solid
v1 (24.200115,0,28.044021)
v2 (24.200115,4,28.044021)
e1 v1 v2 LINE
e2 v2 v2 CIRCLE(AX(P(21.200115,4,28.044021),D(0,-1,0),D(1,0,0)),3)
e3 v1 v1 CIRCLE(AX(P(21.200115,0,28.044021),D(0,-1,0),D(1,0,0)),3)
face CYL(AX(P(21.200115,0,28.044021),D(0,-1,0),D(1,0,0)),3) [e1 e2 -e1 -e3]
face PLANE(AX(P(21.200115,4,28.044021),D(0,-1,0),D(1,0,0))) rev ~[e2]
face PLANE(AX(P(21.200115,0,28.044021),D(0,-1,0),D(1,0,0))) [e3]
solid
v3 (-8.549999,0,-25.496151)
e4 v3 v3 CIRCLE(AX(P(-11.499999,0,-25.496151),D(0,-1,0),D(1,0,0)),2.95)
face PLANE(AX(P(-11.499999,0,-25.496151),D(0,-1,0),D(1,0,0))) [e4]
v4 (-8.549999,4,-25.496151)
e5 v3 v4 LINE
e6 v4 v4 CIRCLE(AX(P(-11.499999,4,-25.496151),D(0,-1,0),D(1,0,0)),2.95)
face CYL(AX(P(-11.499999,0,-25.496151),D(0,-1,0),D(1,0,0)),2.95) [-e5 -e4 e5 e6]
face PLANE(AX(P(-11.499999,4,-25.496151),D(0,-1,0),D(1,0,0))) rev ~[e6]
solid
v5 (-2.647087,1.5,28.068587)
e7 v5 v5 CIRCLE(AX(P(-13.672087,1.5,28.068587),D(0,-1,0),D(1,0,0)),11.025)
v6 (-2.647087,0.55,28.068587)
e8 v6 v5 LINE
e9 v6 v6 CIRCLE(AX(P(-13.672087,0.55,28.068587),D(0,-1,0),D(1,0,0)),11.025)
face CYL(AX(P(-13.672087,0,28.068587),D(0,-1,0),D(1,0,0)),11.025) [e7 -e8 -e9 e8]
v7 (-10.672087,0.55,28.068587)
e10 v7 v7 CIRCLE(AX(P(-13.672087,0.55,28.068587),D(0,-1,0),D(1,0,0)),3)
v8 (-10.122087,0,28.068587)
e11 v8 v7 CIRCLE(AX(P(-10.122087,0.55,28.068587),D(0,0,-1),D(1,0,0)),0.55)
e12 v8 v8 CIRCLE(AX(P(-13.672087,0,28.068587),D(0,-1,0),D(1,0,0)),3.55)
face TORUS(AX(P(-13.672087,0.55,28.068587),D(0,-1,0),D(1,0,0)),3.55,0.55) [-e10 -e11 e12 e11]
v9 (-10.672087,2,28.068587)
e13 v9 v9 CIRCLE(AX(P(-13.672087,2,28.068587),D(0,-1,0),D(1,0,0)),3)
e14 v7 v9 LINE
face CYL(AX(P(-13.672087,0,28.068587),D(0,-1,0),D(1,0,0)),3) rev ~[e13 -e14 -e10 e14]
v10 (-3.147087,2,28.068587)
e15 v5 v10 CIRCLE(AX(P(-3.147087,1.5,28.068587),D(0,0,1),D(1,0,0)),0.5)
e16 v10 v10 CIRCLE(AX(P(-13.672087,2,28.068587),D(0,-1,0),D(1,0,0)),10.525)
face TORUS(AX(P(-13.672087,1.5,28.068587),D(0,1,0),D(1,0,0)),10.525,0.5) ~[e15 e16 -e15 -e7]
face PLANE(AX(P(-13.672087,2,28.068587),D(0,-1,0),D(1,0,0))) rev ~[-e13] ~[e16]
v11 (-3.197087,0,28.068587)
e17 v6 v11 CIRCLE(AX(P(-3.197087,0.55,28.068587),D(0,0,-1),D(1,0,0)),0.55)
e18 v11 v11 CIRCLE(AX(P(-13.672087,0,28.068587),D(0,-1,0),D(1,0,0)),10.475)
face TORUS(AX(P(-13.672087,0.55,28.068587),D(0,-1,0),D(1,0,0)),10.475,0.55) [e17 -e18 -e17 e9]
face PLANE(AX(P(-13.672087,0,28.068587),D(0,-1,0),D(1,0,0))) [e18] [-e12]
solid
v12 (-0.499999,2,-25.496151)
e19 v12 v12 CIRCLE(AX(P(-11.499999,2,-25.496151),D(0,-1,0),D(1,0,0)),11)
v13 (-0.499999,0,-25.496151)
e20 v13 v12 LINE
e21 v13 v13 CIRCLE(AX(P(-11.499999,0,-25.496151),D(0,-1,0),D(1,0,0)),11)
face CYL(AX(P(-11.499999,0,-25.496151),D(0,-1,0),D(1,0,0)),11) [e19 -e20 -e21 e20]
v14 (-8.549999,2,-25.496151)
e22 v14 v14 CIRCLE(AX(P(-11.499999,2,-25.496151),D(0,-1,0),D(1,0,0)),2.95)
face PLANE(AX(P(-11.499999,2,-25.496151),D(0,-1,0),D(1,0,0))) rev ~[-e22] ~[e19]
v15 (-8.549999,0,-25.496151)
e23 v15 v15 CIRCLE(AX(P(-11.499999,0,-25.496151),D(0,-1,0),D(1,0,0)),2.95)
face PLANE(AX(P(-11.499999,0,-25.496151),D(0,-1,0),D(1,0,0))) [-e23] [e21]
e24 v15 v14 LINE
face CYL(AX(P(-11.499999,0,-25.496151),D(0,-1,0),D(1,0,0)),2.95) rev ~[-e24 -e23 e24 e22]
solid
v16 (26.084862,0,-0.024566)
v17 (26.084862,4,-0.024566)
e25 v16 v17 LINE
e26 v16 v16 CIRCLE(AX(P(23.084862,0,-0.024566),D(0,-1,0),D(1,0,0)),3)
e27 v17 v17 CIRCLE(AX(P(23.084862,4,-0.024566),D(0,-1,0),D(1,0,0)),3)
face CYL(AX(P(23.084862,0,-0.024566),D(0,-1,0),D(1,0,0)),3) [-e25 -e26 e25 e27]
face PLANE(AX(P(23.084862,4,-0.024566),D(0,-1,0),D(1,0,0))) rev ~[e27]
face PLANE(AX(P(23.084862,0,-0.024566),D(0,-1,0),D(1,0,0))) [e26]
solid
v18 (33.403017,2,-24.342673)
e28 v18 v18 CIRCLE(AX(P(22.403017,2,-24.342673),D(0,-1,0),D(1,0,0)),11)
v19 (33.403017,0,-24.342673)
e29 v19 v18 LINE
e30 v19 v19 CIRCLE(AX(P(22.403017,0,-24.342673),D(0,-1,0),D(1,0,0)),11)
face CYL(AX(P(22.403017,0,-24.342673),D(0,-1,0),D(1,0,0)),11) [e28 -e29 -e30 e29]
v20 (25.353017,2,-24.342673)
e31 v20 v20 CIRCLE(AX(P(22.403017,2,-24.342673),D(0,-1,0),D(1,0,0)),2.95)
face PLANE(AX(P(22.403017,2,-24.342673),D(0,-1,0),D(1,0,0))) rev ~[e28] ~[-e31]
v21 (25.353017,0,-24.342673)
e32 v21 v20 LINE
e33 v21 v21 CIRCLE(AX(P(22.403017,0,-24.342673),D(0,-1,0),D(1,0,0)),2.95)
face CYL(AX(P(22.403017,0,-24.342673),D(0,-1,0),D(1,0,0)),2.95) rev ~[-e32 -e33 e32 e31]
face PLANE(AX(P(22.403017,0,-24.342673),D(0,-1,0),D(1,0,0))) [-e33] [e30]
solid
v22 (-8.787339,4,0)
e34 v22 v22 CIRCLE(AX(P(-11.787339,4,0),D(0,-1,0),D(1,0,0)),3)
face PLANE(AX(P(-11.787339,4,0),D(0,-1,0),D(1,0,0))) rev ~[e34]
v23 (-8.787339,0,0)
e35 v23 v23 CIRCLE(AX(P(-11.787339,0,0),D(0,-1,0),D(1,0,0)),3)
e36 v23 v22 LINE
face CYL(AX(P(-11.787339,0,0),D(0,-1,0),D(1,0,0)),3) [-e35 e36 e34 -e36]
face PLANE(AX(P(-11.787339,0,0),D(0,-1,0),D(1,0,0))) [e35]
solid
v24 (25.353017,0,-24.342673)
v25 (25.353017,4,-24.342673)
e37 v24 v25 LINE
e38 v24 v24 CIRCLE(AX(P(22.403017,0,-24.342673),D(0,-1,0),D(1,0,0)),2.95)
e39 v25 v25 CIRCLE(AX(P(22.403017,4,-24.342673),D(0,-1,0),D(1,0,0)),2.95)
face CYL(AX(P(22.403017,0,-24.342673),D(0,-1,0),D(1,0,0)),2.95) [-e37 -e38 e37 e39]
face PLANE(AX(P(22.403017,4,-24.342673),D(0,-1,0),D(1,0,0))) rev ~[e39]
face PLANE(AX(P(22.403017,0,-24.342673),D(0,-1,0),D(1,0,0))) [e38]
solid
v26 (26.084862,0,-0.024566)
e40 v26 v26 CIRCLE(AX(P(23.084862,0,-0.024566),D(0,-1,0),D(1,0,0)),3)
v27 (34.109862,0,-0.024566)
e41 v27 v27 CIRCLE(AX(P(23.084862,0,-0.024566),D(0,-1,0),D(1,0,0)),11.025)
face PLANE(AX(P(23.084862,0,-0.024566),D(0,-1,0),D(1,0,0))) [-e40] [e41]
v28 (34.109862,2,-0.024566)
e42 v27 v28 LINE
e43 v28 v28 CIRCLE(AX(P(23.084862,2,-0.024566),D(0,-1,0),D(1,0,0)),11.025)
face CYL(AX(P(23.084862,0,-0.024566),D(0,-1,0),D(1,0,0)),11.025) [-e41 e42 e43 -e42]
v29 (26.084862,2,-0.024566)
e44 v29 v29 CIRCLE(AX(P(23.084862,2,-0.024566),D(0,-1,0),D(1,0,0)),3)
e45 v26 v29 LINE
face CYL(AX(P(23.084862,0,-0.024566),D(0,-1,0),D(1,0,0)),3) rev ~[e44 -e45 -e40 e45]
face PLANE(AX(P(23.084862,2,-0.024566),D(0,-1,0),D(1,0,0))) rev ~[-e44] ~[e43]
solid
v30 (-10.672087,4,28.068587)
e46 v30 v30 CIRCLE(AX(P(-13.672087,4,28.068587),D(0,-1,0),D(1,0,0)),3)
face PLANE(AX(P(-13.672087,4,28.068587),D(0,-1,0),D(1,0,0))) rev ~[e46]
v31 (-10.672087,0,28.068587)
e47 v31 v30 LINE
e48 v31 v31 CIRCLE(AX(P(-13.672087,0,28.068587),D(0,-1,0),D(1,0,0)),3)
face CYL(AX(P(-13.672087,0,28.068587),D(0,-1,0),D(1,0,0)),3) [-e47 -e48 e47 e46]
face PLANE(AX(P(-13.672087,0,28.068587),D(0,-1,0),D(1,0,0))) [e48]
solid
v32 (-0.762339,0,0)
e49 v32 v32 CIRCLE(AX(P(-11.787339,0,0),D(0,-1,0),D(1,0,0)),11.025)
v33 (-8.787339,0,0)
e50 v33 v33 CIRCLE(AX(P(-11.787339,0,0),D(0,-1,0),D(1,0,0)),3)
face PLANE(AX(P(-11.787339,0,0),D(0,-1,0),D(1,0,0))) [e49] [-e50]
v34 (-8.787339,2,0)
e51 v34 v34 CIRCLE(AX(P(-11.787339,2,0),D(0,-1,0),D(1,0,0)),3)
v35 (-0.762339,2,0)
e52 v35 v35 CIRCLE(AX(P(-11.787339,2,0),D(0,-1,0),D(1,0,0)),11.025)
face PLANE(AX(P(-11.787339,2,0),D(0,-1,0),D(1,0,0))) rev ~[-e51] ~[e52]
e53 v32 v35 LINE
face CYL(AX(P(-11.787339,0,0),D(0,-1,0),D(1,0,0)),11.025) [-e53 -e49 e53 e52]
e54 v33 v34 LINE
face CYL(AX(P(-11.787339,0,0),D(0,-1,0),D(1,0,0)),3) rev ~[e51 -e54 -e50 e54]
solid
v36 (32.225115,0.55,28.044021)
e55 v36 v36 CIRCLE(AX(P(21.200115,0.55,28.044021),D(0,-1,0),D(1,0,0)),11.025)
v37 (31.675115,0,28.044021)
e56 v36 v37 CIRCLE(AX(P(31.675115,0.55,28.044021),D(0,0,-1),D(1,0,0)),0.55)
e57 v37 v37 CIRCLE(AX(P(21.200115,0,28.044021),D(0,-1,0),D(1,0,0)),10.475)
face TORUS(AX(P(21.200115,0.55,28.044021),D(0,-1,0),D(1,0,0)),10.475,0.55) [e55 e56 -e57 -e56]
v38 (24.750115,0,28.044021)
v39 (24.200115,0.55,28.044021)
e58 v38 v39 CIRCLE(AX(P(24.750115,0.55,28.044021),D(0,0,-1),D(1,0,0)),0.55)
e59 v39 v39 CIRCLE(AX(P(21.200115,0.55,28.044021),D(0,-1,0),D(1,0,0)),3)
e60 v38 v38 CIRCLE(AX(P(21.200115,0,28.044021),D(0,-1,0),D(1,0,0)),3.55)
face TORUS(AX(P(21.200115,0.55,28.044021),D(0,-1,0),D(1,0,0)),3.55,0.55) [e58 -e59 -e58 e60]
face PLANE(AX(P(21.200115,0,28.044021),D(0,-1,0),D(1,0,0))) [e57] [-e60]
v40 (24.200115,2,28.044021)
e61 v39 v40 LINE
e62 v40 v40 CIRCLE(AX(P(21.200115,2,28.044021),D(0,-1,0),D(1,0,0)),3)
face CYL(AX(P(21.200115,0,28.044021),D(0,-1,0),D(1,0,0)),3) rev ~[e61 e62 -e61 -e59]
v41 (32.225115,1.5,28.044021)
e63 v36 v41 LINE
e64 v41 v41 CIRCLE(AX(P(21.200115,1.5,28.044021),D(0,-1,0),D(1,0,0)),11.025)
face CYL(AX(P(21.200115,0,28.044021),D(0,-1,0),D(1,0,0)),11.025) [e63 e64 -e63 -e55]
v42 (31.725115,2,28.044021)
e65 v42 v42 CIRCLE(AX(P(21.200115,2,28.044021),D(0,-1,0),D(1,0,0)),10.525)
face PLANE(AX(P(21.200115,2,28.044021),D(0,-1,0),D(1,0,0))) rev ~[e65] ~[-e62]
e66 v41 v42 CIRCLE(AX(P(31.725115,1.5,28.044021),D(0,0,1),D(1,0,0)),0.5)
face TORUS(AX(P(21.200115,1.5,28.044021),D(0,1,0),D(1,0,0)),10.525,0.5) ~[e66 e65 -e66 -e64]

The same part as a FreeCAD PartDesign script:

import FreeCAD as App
import Part
import Sketcher


def edges_at(feature, points):
    """Names of the edges that pass closest to the given points."""
    edges = feature.Shape.Edges
    near = lambda p: min(range(len(edges)), key=lambda i: edges[i].distToShape(Part.Vertex(*p))[0])
    return sorted({f"Edge{near(p) + 1}" for p in points})

doc = App.newDocument("Part")
body = doc.addObject("PartDesign::Body", "Body")
body.AllowCompound = True

sketch1 = body.newObject("Sketcher::SketchObject", "Sketch")
sketch1.AttachmentSupport = (doc.getObject("XZ_Plane"), [""])
sketch1.MapMode = "FlatFace"
sketch1.addGeometry([
    Part.Circle(App.Vector(21.200115, 28.044021, 0), App.Vector(0, 0, 1), 11.025),
    Part.Circle(App.Vector(21.200115, 28.044021, 0), App.Vector(0, 0, 1), 3),
    Part.Circle(App.Vector(-13.672087, 28.068587, 0), App.Vector(0, 0, 1), 11.025),
    Part.Circle(App.Vector(-13.672087, 28.068587, 0), App.Vector(0, 0, 1), 3),
], False)
sketch1.addConstraint([
    Sketcher.Constraint("Coincident", 1, 3, 0, 3),
    Sketcher.Constraint("Coincident", 3, 3, 2, 3),
    Sketcher.Constraint("Equal", 0, 2),
    Sketcher.Constraint("Equal", 1, 3),
    Sketcher.Constraint("Diameter", 1, 6.0),
    Sketcher.Constraint("Diameter", 0, 22.05),
    Sketcher.Constraint("DistanceY", -1, 1, 0, 3, 28.044021),
    Sketcher.Constraint("DistanceX", -1, 1, 0, 3, 21.200115),
    Sketcher.Constraint("DistanceX", 2, 3, -1, 1, 13.672087),
    Sketcher.Constraint("DistanceY", -1, 1, 2, 3, 28.068587),
])
pad1 = body.newObject("PartDesign::Pad", "Pad")
pad1.Profile = sketch1
pad1.Length = 2
pad1.Reversed = True
doc.recompute()

fillet = body.newObject("PartDesign::Fillet", "Fillet")
fillet.Base = (pad1, edges_at(pad1, [(10.175, 2, 28.044), (-24.697, 2, 28.069)]))
fillet.Radius = 0.5
doc.recompute()

fillet2 = body.newObject("PartDesign::Fillet", "Fillet001")
fillet2.Base = (fillet, edges_at(fillet, [
    (-24.697, 0, 28.069),
    (-16.672, 0, 28.069),
    (10.175, 0, 28.044),
    (18.2, 0, 28.044),
]))
fillet2.Radius = 0.55
body2 = doc.addObject("PartDesign::Body", "Body001")
body2.AllowCompound = True

sketch2 = body2.newObject("Sketcher::SketchObject", "Sketch001")
sketch2.AttachmentSupport = (doc.getObject("XZ_Plane001"), [""])
sketch2.MapMode = "FlatFace"
sketch2.addGeometry([
    Part.Circle(App.Vector(-13.672087, 28.068587, 0), App.Vector(0, 0, 1), 3),
    Part.Circle(App.Vector(21.200115, 28.044021, 0), App.Vector(0, 0, 1), 3),
], False)
sketch2.addConstraint([
    Sketcher.Constraint("Equal", 0, 1),
    Sketcher.Constraint("Diameter", 0, 6.0),
    Sketcher.Constraint("DistanceY", -1, 1, 1, 3, 28.044021),
    Sketcher.Constraint("DistanceX", 0, 3, -1, 1, 13.672087),
    Sketcher.Constraint("DistanceY", -1, 1, 0, 3, 28.068587),
    Sketcher.Constraint("DistanceX", -1, 1, 1, 3, 21.200115),
])
pad2 = body2.newObject("PartDesign::Pad", "Pad001")
pad2.Profile = sketch2
pad2.Length = 4
pad2.Reversed = True
body3 = doc.addObject("PartDesign::Body", "Body002")
body3.AllowCompound = True

sketch3 = body3.newObject("Sketcher::SketchObject", "Sketch002")
sketch3.AttachmentSupport = (doc.getObject("XZ_Plane002"), [""])
sketch3.MapMode = "FlatFace"
sketch3.addGeometry([
    Part.Circle(App.Vector(-11.787339, 0, 0), App.Vector(0, 0, 1), 11.025),
    Part.Circle(App.Vector(-11.787339, 0, 0), App.Vector(0, 0, 1), 3),
    Part.Circle(App.Vector(23.084862, -0.024566, 0), App.Vector(0, 0, 1), 11.025),
    Part.Circle(App.Vector(23.084862, -0.024566, 0), App.Vector(0, 0, 1), 3),
], False)
sketch3.addConstraint([
    Sketcher.Constraint("Coincident", 1, 3, 0, 3),
    Sketcher.Constraint("Coincident", 3, 3, 2, 3),
    Sketcher.Constraint("Equal", 0, 2),
    Sketcher.Constraint("Equal", 1, 3),
    Sketcher.Constraint("PointOnObject", 0, 3, -1),
    Sketcher.Constraint("Diameter", 1, 6.0),
    Sketcher.Constraint("Diameter", 0, 22.05),
    Sketcher.Constraint("DistanceX", 0, 3, 2, 3, 34.872201),
    Sketcher.Constraint("DistanceX", 0, 3, -1, 1, 11.787339),
    Sketcher.Constraint("DistanceY", 2, 3, -1, 1, 0.024566),
])
pad3 = body3.newObject("PartDesign::Pad", "Pad002")
pad3.Profile = sketch3
pad3.Length = 2
pad3.Reversed = True
body4 = doc.addObject("PartDesign::Body", "Body003")
body4.AllowCompound = True

sketch4 = body4.newObject("Sketcher::SketchObject", "Sketch003")
sketch4.AttachmentSupport = (doc.getObject("XZ_Plane003"), [""])
sketch4.MapMode = "FlatFace"
sketch4.addGeometry([
    Part.Circle(App.Vector(-11.787339, 0, 0), App.Vector(0, 0, 1), 3),
    Part.Circle(App.Vector(23.084862, -0.024566, 0), App.Vector(0, 0, 1), 3),
], False)
sketch4.addConstraint([
    Sketcher.Constraint("Equal", 0, 1),
    Sketcher.Constraint("PointOnObject", 0, 3, -1),
    Sketcher.Constraint("Diameter", 0, 6.0),
    Sketcher.Constraint("DistanceX", 0, 3, 1, 3, 34.872201),
    Sketcher.Constraint("DistanceX", 0, 3, -1, 1, 11.787339),
    Sketcher.Constraint("DistanceY", 1, 3, -1, 1, 0.024566),
])
pad4 = body4.newObject("PartDesign::Pad", "Pad003")
pad4.Profile = sketch4
pad4.Length = 4
pad4.Reversed = True
body5 = doc.addObject("PartDesign::Body", "Body004")
body5.AllowCompound = True

sketch5 = body5.newObject("Sketcher::SketchObject", "Sketch004")
sketch5.AttachmentSupport = (doc.getObject("XZ_Plane004"), [""])
sketch5.MapMode = "FlatFace"
sketch5.addGeometry([
    Part.Circle(App.Vector(-11.499999, -25.496151, 0), App.Vector(0, 0, 1), 11),
    Part.Circle(App.Vector(-11.499999, -25.496151, 0), App.Vector(0, 0, 1), 2.95),
    Part.Circle(App.Vector(22.403017, -24.342673, 0), App.Vector(0, 0, 1), 11),
    Part.Circle(App.Vector(22.403017, -24.342673, 0), App.Vector(0, 0, 1), 2.95),
], False)
sketch5.addConstraint([
    Sketcher.Constraint("Coincident", 1, 3, 0, 3),
    Sketcher.Constraint("Coincident", 3, 3, 2, 3),
    Sketcher.Constraint("Equal", 0, 2),
    Sketcher.Constraint("Equal", 1, 3),
    Sketcher.Constraint("Diameter", 0, 22.0),
    Sketcher.Constraint("Diameter", 1, 5.9),
    Sketcher.Constraint("DistanceX", 0, 3, -1, 1, 11.499999),
    Sketcher.Constraint("DistanceY", 0, 3, -1, 1, 25.496151),
    Sketcher.Constraint("DistanceX", -1, 1, 2, 3, 22.403017),
    Sketcher.Constraint("DistanceY", 2, 3, -1, 1, 24.342673),
])
pad5 = body5.newObject("PartDesign::Pad", "Pad004")
pad5.Profile = sketch5
pad5.Length = 2
pad5.Reversed = True
body6 = doc.addObject("PartDesign::Body", "Body005")
body6.AllowCompound = True

sketch6 = body6.newObject("Sketcher::SketchObject", "Sketch005")
sketch6.AttachmentSupport = (doc.getObject("XZ_Plane005"), [""])
sketch6.MapMode = "FlatFace"
sketch6.addGeometry([
    Part.Circle(App.Vector(-11.499999, -25.496151, 0), App.Vector(0, 0, 1), 2.95),
    Part.Circle(App.Vector(22.403017, -24.342673, 0), App.Vector(0, 0, 1), 2.95),
], False)
sketch6.addConstraint([
    Sketcher.Constraint("Equal", 0, 1),
    Sketcher.Constraint("Diameter", 0, 5.9),
    Sketcher.Constraint("DistanceX", 0, 3, -1, 1, 11.499999),
    Sketcher.Constraint("DistanceY", 0, 3, -1, 1, 25.496151),
    Sketcher.Constraint("DistanceX", -1, 1, 1, 3, 22.403017),
    Sketcher.Constraint("DistanceY", 1, 3, -1, 1, 24.342673),
])
pad6 = body6.newObject("PartDesign::Pad", "Pad005")
pad6.Profile = sketch6
pad6.Length = 4
pad6.Reversed = True

doc.recompute()
